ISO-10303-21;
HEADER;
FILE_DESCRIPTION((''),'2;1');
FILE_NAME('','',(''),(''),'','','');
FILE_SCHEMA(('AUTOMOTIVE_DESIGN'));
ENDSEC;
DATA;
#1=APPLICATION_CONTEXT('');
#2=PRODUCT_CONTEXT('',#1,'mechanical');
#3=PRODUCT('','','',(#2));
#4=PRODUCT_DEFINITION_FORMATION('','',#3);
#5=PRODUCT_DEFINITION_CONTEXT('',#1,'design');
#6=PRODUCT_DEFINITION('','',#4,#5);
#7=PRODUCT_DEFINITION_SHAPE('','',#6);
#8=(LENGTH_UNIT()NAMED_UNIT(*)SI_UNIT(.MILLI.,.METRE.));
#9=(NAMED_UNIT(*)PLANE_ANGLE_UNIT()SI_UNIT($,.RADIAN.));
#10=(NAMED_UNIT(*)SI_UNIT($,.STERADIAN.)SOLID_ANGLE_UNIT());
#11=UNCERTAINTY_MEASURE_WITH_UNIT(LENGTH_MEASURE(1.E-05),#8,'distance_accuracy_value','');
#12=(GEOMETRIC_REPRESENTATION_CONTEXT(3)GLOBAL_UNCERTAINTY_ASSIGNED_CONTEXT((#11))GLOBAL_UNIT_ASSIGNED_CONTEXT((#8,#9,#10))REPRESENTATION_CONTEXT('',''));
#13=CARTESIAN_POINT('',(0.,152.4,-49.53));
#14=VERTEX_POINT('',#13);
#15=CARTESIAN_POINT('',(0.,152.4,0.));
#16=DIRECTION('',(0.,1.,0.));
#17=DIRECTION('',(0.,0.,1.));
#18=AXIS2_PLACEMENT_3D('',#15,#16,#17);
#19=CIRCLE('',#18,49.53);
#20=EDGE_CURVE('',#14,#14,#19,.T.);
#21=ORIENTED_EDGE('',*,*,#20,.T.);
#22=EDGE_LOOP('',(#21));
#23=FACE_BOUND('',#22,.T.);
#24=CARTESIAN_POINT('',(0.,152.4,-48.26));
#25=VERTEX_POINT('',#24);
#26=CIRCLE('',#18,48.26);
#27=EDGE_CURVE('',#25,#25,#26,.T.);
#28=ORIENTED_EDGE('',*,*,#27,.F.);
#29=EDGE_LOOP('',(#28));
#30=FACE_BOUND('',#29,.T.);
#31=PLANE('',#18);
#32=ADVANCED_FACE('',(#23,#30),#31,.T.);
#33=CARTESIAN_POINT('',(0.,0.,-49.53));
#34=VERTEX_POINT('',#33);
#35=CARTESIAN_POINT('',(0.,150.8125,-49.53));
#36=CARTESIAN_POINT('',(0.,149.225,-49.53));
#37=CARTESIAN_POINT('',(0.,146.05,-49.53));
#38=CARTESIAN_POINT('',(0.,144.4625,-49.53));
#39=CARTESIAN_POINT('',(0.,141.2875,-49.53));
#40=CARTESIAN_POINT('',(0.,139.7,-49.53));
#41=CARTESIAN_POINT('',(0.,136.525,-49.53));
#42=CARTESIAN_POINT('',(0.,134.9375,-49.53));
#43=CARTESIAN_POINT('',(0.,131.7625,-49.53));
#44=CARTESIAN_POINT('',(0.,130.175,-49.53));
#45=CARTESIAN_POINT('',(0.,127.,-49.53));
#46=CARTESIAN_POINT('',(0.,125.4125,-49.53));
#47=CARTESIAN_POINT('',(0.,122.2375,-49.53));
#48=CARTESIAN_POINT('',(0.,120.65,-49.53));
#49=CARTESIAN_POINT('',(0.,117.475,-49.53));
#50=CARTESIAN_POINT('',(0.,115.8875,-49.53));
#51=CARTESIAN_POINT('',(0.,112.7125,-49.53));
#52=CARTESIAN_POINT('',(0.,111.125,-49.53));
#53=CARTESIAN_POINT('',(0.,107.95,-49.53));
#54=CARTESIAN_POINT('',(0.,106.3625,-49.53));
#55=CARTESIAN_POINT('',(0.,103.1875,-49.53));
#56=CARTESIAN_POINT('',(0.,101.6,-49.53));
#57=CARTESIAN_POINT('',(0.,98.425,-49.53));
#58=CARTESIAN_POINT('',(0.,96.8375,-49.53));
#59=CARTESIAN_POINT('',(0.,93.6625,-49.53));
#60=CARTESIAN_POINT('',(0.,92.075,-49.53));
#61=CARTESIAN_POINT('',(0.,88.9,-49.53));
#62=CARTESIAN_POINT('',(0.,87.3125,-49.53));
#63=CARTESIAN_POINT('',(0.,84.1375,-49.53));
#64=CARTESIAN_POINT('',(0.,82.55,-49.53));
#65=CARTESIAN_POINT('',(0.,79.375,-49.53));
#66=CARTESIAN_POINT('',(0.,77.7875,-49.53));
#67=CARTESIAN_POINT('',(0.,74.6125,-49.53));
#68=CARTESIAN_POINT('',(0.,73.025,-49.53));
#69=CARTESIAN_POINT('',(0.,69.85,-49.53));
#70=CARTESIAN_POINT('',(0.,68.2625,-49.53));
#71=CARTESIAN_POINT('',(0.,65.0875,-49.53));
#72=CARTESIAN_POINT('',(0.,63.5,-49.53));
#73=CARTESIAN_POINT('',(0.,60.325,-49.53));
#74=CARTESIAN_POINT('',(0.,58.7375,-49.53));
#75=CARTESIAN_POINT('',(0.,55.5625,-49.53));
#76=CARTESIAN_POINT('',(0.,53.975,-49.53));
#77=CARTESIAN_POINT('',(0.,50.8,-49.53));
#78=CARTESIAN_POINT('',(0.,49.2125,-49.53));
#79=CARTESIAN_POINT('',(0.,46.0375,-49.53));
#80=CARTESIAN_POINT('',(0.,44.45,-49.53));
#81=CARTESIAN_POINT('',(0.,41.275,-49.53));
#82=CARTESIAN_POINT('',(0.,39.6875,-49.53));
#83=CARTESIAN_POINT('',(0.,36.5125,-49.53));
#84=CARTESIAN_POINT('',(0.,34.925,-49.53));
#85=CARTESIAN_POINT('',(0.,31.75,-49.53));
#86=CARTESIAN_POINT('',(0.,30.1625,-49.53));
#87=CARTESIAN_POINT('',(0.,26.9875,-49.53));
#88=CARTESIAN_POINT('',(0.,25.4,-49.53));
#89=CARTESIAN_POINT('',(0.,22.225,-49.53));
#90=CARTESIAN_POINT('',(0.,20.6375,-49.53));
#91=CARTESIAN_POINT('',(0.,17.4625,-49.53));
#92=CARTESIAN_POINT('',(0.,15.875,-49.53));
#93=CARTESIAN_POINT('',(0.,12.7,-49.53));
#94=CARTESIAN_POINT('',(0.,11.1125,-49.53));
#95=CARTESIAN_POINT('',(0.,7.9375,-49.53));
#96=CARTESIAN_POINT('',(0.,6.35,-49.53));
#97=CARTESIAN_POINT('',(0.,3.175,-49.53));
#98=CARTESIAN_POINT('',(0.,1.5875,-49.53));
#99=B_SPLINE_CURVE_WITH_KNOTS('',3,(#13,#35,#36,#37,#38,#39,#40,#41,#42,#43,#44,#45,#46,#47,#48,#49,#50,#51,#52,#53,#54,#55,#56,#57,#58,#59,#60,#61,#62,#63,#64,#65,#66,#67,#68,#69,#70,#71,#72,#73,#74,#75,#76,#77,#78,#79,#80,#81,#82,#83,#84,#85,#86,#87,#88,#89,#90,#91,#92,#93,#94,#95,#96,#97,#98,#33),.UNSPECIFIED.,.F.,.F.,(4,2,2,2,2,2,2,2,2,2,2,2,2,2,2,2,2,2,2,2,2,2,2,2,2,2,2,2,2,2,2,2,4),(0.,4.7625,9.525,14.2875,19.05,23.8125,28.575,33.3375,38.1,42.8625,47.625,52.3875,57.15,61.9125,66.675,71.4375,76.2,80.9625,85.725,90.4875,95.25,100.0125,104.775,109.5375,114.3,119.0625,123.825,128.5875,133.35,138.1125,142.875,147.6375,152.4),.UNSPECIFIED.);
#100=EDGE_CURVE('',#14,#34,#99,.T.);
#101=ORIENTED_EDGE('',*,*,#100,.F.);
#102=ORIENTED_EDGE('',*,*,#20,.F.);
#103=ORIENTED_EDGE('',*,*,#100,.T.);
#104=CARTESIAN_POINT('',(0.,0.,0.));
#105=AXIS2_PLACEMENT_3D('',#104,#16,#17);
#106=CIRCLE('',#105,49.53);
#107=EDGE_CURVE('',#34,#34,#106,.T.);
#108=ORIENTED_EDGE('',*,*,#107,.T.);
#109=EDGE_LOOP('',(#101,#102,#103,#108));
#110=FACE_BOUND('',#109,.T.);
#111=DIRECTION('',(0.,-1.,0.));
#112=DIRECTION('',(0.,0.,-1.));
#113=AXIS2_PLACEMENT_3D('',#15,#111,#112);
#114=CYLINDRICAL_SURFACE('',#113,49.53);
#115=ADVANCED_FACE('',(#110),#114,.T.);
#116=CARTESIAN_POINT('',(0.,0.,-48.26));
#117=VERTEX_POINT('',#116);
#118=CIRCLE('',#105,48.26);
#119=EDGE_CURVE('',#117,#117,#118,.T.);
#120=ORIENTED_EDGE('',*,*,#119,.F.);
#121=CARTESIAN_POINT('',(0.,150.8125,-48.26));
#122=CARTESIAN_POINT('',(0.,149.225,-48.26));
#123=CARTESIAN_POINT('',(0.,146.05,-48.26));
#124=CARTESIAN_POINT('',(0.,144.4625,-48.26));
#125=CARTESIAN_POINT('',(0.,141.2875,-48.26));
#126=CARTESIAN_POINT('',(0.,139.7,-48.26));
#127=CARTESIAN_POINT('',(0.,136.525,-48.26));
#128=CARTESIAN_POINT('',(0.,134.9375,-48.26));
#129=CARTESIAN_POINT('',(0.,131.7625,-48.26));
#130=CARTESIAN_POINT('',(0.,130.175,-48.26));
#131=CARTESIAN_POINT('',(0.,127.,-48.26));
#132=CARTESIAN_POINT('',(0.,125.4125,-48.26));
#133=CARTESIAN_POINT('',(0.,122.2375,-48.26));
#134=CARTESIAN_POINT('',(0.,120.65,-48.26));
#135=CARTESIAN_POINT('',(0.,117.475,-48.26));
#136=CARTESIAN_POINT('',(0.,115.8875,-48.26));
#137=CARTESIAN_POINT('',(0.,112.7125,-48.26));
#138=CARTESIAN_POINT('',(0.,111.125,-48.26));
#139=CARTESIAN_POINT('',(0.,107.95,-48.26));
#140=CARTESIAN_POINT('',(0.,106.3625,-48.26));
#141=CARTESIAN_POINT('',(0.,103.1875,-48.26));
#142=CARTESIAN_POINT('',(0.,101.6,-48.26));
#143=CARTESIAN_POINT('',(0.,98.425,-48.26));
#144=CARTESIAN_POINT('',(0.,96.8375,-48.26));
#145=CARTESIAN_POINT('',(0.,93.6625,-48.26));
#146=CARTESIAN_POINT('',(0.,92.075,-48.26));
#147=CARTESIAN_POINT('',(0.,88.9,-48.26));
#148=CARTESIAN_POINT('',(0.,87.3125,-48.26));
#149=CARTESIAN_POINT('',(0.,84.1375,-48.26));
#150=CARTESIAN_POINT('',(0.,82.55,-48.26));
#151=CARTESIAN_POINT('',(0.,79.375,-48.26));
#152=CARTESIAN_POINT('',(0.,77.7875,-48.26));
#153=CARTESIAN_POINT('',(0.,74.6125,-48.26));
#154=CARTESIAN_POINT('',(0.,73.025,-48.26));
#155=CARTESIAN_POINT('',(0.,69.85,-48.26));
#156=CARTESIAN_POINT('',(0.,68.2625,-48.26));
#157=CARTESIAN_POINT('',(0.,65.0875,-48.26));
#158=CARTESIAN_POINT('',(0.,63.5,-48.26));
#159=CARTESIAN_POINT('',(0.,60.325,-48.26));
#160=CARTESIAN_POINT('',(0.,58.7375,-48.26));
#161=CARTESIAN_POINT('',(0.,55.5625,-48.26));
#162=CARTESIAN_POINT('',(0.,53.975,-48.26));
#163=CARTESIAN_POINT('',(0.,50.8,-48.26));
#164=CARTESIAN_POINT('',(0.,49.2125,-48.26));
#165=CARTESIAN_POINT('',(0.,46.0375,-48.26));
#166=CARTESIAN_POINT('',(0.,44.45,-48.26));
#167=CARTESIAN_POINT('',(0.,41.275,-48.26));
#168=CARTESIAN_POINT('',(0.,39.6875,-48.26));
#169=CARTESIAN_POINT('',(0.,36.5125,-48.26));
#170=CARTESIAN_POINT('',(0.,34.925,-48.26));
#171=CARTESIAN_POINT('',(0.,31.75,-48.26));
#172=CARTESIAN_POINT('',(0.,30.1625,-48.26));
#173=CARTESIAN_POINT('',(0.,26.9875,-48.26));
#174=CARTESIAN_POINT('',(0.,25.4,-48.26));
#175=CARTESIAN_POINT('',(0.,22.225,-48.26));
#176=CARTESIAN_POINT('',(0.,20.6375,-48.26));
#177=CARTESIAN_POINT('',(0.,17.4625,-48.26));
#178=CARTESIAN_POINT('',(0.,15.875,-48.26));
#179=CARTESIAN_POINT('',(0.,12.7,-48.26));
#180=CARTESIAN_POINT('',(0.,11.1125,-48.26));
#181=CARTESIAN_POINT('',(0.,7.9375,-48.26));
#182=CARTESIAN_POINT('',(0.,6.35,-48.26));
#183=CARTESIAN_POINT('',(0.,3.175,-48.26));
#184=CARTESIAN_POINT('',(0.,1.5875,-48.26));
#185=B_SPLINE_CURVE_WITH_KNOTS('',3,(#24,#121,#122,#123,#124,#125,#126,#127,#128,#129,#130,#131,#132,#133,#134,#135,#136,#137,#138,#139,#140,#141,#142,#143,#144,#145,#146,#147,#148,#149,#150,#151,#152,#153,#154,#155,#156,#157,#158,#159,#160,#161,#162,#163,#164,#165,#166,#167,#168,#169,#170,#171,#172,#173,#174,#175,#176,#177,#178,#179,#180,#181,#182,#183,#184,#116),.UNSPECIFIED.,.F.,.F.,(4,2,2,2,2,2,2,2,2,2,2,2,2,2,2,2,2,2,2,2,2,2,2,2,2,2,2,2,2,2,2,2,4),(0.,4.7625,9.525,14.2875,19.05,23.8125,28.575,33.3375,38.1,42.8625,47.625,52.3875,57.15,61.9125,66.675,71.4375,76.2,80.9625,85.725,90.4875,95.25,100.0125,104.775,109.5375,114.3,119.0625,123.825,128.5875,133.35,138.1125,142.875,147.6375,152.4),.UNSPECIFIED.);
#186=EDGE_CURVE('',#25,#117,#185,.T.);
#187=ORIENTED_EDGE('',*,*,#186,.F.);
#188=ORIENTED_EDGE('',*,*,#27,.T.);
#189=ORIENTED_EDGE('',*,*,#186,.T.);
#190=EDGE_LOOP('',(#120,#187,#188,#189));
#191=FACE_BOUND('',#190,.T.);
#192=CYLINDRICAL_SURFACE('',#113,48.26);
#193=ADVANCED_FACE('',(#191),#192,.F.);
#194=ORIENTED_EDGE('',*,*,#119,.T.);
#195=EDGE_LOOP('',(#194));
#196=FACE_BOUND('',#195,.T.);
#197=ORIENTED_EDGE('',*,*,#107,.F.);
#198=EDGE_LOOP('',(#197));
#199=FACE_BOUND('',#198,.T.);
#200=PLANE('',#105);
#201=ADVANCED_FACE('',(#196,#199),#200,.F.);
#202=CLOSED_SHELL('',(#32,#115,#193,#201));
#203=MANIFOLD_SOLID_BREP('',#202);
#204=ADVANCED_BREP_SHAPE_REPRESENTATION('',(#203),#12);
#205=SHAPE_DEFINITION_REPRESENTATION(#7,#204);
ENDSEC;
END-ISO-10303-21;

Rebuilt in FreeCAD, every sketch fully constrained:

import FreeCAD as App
import Part
import Sketcher

V = App.Vector
Q = App.Units.Quantity

doc = App.newDocument("Part")
body = doc.addObject("PartDesign::Body", "Body")

sketch1 = body.newObject("Sketcher::SketchObject", "Sketch")
sketch1.AttachmentSupport = (doc.getObject("XZ_Plane"), [""])
sketch1.MapMode = "FlatFace"
sketch1.addGeometry([
    Part.Circle(V(0, 0, 0), V(0, 0, 1), 49.53),
    Part.Circle(V(0, 0, 0), V(0, 0, 1), 48.26),
], False)
sketch1.addConstraint([
    Sketcher.Constraint("Coincident", 0, 3, -1, 1),
    Sketcher.Constraint("Coincident", 1, 3, -1, 1),
    Sketcher.Constraint("Diameter", 0, Q("3.9 in")),
    Sketcher.Constraint("Diameter", 1, Q("3.8 in")),
])
pad1 = body.newObject("PartDesign::Pad", "Pad")
pad1.Profile = sketch1
pad1.Length = Q("6 in")
pad1.Reversed = True

doc.recompute()
